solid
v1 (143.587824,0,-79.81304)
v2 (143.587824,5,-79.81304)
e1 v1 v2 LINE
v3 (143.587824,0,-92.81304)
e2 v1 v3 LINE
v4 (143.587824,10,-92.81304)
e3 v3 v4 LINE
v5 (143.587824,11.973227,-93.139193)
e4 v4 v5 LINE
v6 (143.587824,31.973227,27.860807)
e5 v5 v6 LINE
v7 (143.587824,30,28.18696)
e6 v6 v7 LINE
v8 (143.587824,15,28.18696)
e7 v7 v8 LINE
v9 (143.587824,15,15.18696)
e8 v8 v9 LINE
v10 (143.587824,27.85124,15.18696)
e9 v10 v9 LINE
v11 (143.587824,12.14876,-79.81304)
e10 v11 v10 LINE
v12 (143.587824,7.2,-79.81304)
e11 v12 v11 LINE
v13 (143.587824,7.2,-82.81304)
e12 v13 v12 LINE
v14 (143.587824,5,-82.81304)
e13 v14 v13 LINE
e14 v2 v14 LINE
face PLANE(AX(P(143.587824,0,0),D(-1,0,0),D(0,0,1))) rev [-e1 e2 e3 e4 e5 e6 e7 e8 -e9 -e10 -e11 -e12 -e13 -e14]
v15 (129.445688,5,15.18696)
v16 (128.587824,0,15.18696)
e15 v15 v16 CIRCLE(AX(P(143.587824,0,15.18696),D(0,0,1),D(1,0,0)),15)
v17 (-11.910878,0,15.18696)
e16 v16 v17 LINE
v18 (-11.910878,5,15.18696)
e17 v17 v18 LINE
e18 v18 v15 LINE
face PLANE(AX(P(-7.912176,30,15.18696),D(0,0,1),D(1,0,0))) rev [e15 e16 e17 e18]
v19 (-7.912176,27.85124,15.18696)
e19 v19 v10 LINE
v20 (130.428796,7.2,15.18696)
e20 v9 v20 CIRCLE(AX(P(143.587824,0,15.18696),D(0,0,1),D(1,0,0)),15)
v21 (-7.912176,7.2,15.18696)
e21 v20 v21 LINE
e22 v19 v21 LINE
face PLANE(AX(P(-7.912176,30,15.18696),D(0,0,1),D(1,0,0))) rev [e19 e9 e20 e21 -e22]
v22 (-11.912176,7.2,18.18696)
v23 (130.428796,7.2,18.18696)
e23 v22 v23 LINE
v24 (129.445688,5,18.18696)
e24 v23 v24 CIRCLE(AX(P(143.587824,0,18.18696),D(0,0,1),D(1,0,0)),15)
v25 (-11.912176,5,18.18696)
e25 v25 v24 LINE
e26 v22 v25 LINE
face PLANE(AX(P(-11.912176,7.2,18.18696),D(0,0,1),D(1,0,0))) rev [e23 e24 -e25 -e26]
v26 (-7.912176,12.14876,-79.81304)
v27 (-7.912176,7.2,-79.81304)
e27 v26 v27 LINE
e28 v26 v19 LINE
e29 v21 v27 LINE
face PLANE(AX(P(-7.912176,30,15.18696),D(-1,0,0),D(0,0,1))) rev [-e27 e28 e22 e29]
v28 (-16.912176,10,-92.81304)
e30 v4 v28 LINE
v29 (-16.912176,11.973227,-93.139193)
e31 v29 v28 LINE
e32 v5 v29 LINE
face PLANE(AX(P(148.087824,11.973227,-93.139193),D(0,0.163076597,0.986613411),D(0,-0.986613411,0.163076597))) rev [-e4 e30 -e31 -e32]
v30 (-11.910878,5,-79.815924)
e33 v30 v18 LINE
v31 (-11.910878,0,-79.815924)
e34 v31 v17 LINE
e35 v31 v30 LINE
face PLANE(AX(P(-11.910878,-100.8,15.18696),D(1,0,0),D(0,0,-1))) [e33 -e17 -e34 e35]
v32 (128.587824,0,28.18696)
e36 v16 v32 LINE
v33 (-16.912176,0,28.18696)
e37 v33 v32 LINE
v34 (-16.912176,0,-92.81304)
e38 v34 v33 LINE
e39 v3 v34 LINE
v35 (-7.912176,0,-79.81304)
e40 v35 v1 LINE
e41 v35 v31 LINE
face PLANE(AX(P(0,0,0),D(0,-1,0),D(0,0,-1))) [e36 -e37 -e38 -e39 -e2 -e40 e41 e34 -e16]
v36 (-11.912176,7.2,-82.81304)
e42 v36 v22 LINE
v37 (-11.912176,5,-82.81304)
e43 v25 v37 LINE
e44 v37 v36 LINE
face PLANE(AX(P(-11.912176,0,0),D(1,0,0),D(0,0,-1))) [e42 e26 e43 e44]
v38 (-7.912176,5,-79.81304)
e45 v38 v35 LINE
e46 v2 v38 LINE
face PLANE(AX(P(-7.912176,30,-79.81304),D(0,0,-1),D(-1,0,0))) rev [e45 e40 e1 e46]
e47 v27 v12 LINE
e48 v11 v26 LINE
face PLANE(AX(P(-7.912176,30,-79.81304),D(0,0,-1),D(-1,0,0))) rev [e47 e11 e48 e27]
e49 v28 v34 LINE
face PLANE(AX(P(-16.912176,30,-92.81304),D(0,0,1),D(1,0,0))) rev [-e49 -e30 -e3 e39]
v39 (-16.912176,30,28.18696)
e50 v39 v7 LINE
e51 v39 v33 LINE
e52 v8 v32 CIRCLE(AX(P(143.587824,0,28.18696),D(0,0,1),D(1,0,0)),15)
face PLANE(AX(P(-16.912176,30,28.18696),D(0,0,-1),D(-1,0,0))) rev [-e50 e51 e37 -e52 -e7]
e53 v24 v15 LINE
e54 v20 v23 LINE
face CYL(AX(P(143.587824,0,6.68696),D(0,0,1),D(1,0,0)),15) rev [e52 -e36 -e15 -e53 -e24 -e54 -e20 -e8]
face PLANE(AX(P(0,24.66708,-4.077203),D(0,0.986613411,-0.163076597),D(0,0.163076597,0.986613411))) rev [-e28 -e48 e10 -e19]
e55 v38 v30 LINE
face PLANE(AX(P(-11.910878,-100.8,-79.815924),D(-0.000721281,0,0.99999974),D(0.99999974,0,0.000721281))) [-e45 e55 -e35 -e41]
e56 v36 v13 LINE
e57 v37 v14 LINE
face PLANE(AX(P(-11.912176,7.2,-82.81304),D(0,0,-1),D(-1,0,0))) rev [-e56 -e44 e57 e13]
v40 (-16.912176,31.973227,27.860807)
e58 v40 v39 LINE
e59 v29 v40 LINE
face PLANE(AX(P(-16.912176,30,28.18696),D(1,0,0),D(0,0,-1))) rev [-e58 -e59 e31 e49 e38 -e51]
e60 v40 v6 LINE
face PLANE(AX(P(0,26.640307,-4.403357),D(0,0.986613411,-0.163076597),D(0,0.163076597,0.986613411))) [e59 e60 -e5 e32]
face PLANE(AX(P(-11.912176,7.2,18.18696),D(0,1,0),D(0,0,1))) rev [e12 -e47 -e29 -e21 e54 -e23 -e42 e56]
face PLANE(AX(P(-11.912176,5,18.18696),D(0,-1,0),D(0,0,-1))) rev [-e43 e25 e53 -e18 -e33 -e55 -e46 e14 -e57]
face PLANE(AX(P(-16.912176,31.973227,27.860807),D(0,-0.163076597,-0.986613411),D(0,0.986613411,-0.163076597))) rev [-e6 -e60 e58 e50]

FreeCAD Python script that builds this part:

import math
import FreeCAD as App
import Part
import Sketcher

V = App.Vector
Q = App.Units.Quantity

doc = App.newDocument("Part")
params = doc.addObject("Spreadsheet::Sheet", "Params")
for row, (alias, value) in enumerate([
    ("sketch1_width", "156 mm"),
    ("sketch1_width2", "165 mm"),
    ("sketch1_height", "95 mm"),
    ("sketch1_height2", "13 mm"),
    ("pad1_length", "30 mm"),
    ("sketch2_height", "101 mm"),
    ("sketch2_width", "2.2 mm"),
    ("pocket1_length", "160 mm"),
    ("sketch3_height", "95 mm"),
    ("pocket2_length", "108 mm"),
    ("sketch4_width", "20 mm"),
    ("sketch4_height", "121 mm"),
    ("pocket3_length", "202 mm"),
    ("sketch5_width", "165 mm"),
    ("pad2_length", "2 mm"),
    ("sketch6_diameter", "30 mm"),
    ("pocket4_length", "22 mm"),
    ("sketch7_width", "30 mm"),
    ("sketch7_width2", "10 mm"),
    ("sketch7_height", "121 mm"),
    ("sketch7_length", "2 mm"),
    ("pocket5_length", "4.5 mm"),
    ("sketch8_radius", "15 mm"),
    ("pocket6_length", "21.5 mm"),
], start=1):
    params.set(f"A{row}", alias)
    params.set(f"B{row}", "=" + value)
    params.setAlias(f"B{row}", alias)

body = doc.addObject("PartDesign::Body", "Body")

# Sketch on XZ plane
sketch1 = body.newObject("Sketcher::SketchObject", "Sketch")
sketch1.AttachmentSupport = (doc.getObject("XZ_Plane"), [""])
sketch1.MapMode = "FlatFace"
sketch1.addGeometry([
    Part.LineSegment(V(-7.912176, 15.18696, 0), V(-7.912176, -79.81304, 0)),  # 0
    Part.LineSegment(V(-7.912176, -79.81304, 0), V(148.087824, -79.81304, 0)),  # 1
    Part.LineSegment(V(148.087824, -79.81304, 0), V(148.087824, -92.81304, 0)),  # 2
    Part.LineSegment(V(148.087824, -92.81304, 0), V(-16.912176, -92.81304, 0)),  # 3
    Part.LineSegment(V(-16.912176, -92.81304, 0), V(-16.912176, 28.18696, 0)),  # 4
    Part.LineSegment(V(-16.912176, 28.18696, 0), V(148.087824, 28.18696, 0)),  # 5
    Part.LineSegment(V(148.087824, 28.18696, 0), V(148.087824, 15.18696, 0)),  # 6
    Part.LineSegment(V(148.087824, 15.18696, 0), V(-7.912176, 15.18696, 0)),  # 7
], False)
sketch1.addConstraint([
    Sketcher.Constraint("Coincident", 0, 2, 1, 1),
    Sketcher.Constraint("Coincident", 1, 2, 2, 1),
    Sketcher.Constraint("Coincident", 2, 2, 3, 1),
    Sketcher.Constraint("Coincident", 3, 2, 4, 1),
    Sketcher.Constraint("Coincident", 4, 2, 5, 1),
    Sketcher.Constraint("Coincident", 5, 2, 6, 1),
    Sketcher.Constraint("Coincident", 6, 2, 7, 1),
    Sketcher.Constraint("Coincident", 7, 2, 0, 1),
    Sketcher.Constraint("Vertical", 0),
    Sketcher.Constraint("Horizontal", 1),
    Sketcher.Constraint("Vertical", 2),
    Sketcher.Constraint("Horizontal", 3),
    Sketcher.Constraint("Vertical", 4),
    Sketcher.Constraint("Horizontal", 5),
    Sketcher.Constraint("Vertical", 6),
    Sketcher.Constraint("Horizontal", 7),
    Sketcher.Constraint("Vertical", 2, 2, 5, 2),
    Sketcher.Constraint("Equal", 2, 6),
    Sketcher.Constraint("DistanceX", 1, 1, 1, 2, Q("156 mm")),
    Sketcher.Constraint("DistanceX", 3, 2, 3, 1, Q("165 mm")),
    Sketcher.Constraint("DistanceY", 0, 2, 0, 1, Q("95 mm")),
    Sketcher.Constraint("DistanceY", 2, 2, 2, 1, Q("13 mm")),
    Sketcher.Constraint("DistanceY", 0, 2, -1, 1, Q("79.81304 mm")),
    Sketcher.Constraint("DistanceX", 0, 2, -1, 1, Q("7.912176 mm")),
])
sketch1.setExpression("Constraints[18]", "Params.sketch1_width")
sketch1.setExpression("Constraints[19]", "Params.sketch1_width2")
sketch1.setExpression("Constraints[20]", "Params.sketch1_height")
sketch1.setExpression("Constraints[21]", "Params.sketch1_height2")
pad1 = body.newObject("PartDesign::Pad", "Pad")
pad1.Profile = sketch1
pad1.setExpression("Length", "Params.pad1_length")
pad1.Reversed = True

# Sketch on YZ plane
sketch2 = body.newObject("Sketcher::SketchObject", "Sketch001")
sketch2.AttachmentSupport = (doc.getObject("YZ_Plane"), [""])
sketch2.MapMode = "FlatFace"
sketch2.AttachmentOffset = App.Placement(V(0, 0, 148.087824), App.Rotation())
sketch2.addGeometry([
    Part.LineSegment(V(7.2, 18.18696, 0), V(5, 18.18696, 0)),
    Part.LineSegment(V(5, 18.18696, 0), V(5, -82.81304, 0)),
    Part.LineSegment(V(5, -82.81304, 0), V(7.2, -82.81304, 0)),
    Part.LineSegment(V(7.2, -82.81304, 0), V(7.2, 18.18696, 0)),
], False)
sketch2.addConstraint([
    Sketcher.Constraint("Coincident", 0, 2, 1, 1),
    Sketcher.Constraint("Coincident", 1, 2, 2, 1),
    Sketcher.Constraint("Coincident", 2, 2, 3, 1),
    Sketcher.Constraint("Coincident", 3, 2, 0, 1),
    Sketcher.Constraint("Horizontal", 0),
    Sketcher.Constraint("Vertical", 1),
    Sketcher.Constraint("Horizontal", 2),
    Sketcher.Constraint("Vertical", 3),
    Sketcher.Constraint("DistanceY", 1, 2, 1, 1, Q("101 mm")),
    Sketcher.Constraint("DistanceX", 0, 2, 0, 1, Q("2.2 mm")),
    Sketcher.Constraint("DistanceX", -1, 1, 0, 2, Q("5 mm")),
    Sketcher.Constraint("DistanceY", -1, 1, 0, 2, Q("18.18696 mm")),
])
sketch2.setExpression("Constraints[8]", "Params.sketch2_height")
sketch2.setExpression("Constraints[9]", "Params.sketch2_width")
pocket1 = body.newObject("PartDesign::Pocket", "Pocket")
pocket1.Profile = sketch2
pocket1.setExpression("Length", "Params.pocket1_length")

# Sketch on XZ plane
sketch3 = body.newObject("Sketcher::SketchObject", "Sketch002")
sketch3.AttachmentSupport = (doc.getObject("XZ_Plane"), [""])
sketch3.MapMode = "FlatFace"
sketch3.AttachmentOffset = App.Placement(V(0, 0, -7.2), App.Rotation())
sketch3.addGeometry([
    Part.LineSegment(V(-7.912176, 15.18696, 0), V(-11.910878, 15.18696, 0)),
    Part.LineSegment(V(-11.910878, 15.18696, 0), V(-11.910878, -79.815924, 0)),
    Part.LineSegment(V(-11.910878, -79.815924, 0), V(-7.912176, -79.81304, 0)),
    Part.LineSegment(V(-7.912176, -79.81304, 0), V(-7.912176, 15.18696, 0)),
], False)
sketch3.addConstraint([
    Sketcher.Constraint("Coincident", 0, 2, 1, 1),
    Sketcher.Constraint("Coincident", 1, 2, 2, 1),
    Sketcher.Constraint("Coincident", 2, 2, 3, 1),
    Sketcher.Constraint("Coincident", 3, 2, 0, 1),
    Sketcher.Constraint("Horizontal", 0),
    Sketcher.Constraint("Vertical", 1),
    Sketcher.Constraint("Vertical", 3),
    Sketcher.Constraint("DistanceY", 3, 1, 3, 2, Q("95 mm")),
    Sketcher.Constraint("DistanceX", 0, 2, 0, 1, Q("3.998702 mm")),
    Sketcher.Constraint("DistanceY", 1, 2, 1, 1, Q("95.002884 mm")),
    Sketcher.Constraint("DistanceY", -1, 1, 0, 2, Q("15.18696 mm")),
    Sketcher.Constraint("DistanceX", 0, 2, -1, 1, Q("11.910878 mm")),
])
sketch3.setExpression("Constraints[7]", "Params.sketch3_height")
pocket2 = body.newObject("PartDesign::Pocket", "Pocket001")
pocket2.Profile = sketch3
pocket2.setExpression("Length", "Params.pocket2_length")
pocket2.Reversed = True

# Sketch on YZ plane
sketch4 = body.newObject("Sketcher::SketchObject", "Sketch003")
sketch4.AttachmentSupport = (doc.getObject("YZ_Plane"), [""])
sketch4.MapMode = "FlatFace"
sketch4.AttachmentOffset = App.Placement(V(0, 0, -16.912176), App.Rotation())
sketch4.addGeometry([
    Part.LineSegment(V(30, -92.81304, 0), V(10, -92.81304, 0)),
    Part.LineSegment(V(10, -92.81304, 0), V(30, 28.18696, 0)),
    Part.LineSegment(V(30, 28.18696, 0), V(30, -92.81304, 0)),
], False)
sketch4.addConstraint([
    Sketcher.Constraint("Coincident", 0, 2, 1, 1),
    Sketcher.Constraint("Coincident", 1, 2, 2, 1),
    Sketcher.Constraint("Coincident", 2, 2, 0, 1),
    Sketcher.Constraint("Horizontal", 0),
    Sketcher.Constraint("Vertical", 2),
    Sketcher.Constraint("DistanceX", 0, 2, 0, 1, Q("20 mm")),
    Sketcher.Constraint("DistanceY", 2, 2, 2, 1, Q("121 mm")),
    Sketcher.Constraint("DistanceX", -1, 1, 0, 2, Q("10 mm")),
    Sketcher.Constraint("DistanceY", 0, 2, -1, 1, Q("92.81304 mm")),
])
sketch4.setExpression("Constraints[5]", "Params.sketch4_width")
sketch4.setExpression("Constraints[6]", "Params.sketch4_height")
pocket3 = body.newObject("PartDesign::Pocket", "Pocket002")
pocket3.Profile = sketch4
pocket3.setExpression("Length", "Params.pocket3_length")
pocket3.Reversed = True

# Sketch on an angled plane
sketch5 = body.newObject("Sketcher::SketchObject", "Sketch004")
sketch5.Placement = App.Placement(V(0, 24.66708, -4.077203), App.Rotation(V(1, 0, 0), V(0, -0.163076597, -0.986613411), V(0, 0.986613411, -0.163076597), "ZXY"))
sketch5.addGeometry([
    Part.LineSegment(V(-16.912176, 89.939824, 0), V(-16.912176, -32.701931, 0)),
    Part.LineSegment(V(-16.912176, -32.701931, 0), V(148.087824, -32.701931, 0)),
    Part.LineSegment(V(148.087824, -32.701931, 0), V(148.087824, 89.939824, 0)),
    Part.LineSegment(V(148.087824, 89.939824, 0), V(-16.912176, 89.939824, 0)),
], False)
sketch5.addConstraint([
    Sketcher.Constraint("Coincident", 0, 2, 1, 1),
    Sketcher.Constraint("Coincident", 1, 2, 2, 1),
    Sketcher.Constraint("Coincident", 2, 2, 3, 1),
    Sketcher.Constraint("Coincident", 3, 2, 0, 1),
    Sketcher.Constraint("Vertical", 0),
    Sketcher.Constraint("Horizontal", 1),
    Sketcher.Constraint("Vertical", 2),
    Sketcher.Constraint("Horizontal", 3),
    Sketcher.Constraint("DistanceX", 1, 1, 1, 2, Q("165 mm")),
    Sketcher.Constraint("DistanceY", 0, 2, 0, 1, Q("122.641755 mm")),
    Sketcher.Constraint("DistanceY", 0, 2, -1, 1, Q("32.701931 mm")),
    Sketcher.Constraint("DistanceX", 0, 2, -1, 1, Q("16.912176 mm")),
])
sketch5.setExpression("Constraints[8]", "Params.sketch5_width")
pad2 = body.newObject("PartDesign::Pad", "Pad001")
pad2.Profile = sketch5
pad2.setExpression("Length", "Params.pad2_length")

# Sketch on XY plane
sketch6 = body.newObject("Sketcher::SketchObject", "Sketch005")
sketch6.AttachmentSupport = (doc.getObject("XY_Plane"), [""])
sketch6.MapMode = "FlatFace"
sketch6.AttachmentOffset = App.Placement(V(0, 0, 28.18696), App.Rotation())
sketch6.addGeometry(Part.Circle(V(148.087824, 0, 0), V(0, 0, 1), 15), False)
sketch6.addConstraint([
    Sketcher.Constraint("PointOnObject", 0, 3, -1),
    Sketcher.Constraint("Diameter", 0, Q("30 mm")),
    Sketcher.Constraint("DistanceX", -1, 1, 0, 3, Q("148.087824 mm")),
])
sketch6.setExpression("Constraints[1]", "Params.sketch6_diameter")
pocket4 = body.newObject("PartDesign::Pocket", "Pocket003")
pocket4.Profile = sketch6
pocket4.setExpression("Length", "Params.pocket4_length")

# Sketch on YZ plane
sketch7 = body.newObject("Sketcher::SketchObject", "Sketch006")
sketch7.AttachmentSupport = (doc.getObject("YZ_Plane"), [""])
sketch7.MapMode = "FlatFace"
sketch7.AttachmentOffset = App.Placement(V(0, 0, 148.087824), App.Rotation())
sketch7.addGeometry([
    Part.LineSegment(V(30, 28.18696, 0), V(0, 28.18696, 0)),  # 0
    Part.LineSegment(V(0, 28.18696, 0), V(0, -92.81304, 0)),  # 1
    Part.LineSegment(V(0, -92.81304, 0), V(10, -92.81304, 0)),  # 2
    Part.LineSegment(V(10, -92.81304, 0), V(11.973227, -93.139193, 0)),  # 3
    Part.LineSegment(V(11.973227, -93.139193, 0), V(31.973227, 27.860807, 0)),  # 4
    Part.LineSegment(V(31.973227, 27.860807, 0), V(30, 28.18696, 0)),  # 5
], False)
sketch7.addConstraint([
    Sketcher.Constraint("Coincident", 0, 2, 1, 1),
    Sketcher.Constraint("Coincident", 1, 2, 2, 1),
    Sketcher.Constraint("Coincident", 2, 2, 3, 1),
    Sketcher.Constraint("Coincident", 3, 2, 4, 1),
    Sketcher.Constraint("Coincident", 4, 2, 5, 1),
    Sketcher.Constraint("Coincident", 5, 2, 0, 1),
    Sketcher.Constraint("Horizontal", 0),
    Sketcher.Constraint("Vertical", 1),
    Sketcher.Constraint("Horizontal", 2),
    Sketcher.Constraint("PointOnObject", 0, 2, -2),
    Sketcher.Constraint("Perpendicular", 3, 4),
    Sketcher.Constraint("Perpendicular", 4, 5),
    Sketcher.Constraint("Equal", 3, 5),
    Sketcher.Constraint("DistanceX", 0, 2, 0, 1, Q("30 mm")),
    Sketcher.Constraint("DistanceX", 2, 1, 2, 2, Q("10 mm")),
    Sketcher.Constraint("DistanceY", 1, 2, 1, 1, Q("121 mm")),
    Sketcher.Constraint("Distance", 3, Q("2 mm")),
    Sketcher.Constraint("DistanceY", -1, 1, 0, 2, Q("28.18696 mm")),
])
sketch7.setExpression("Constraints[13]", "Params.sketch7_width")
sketch7.setExpression("Constraints[14]", "Params.sketch7_width2")
sketch7.setExpression("Constraints[15]", "Params.sketch7_height")
sketch7.setExpression("Constraints[16]", "Params.sketch7_length")
pocket5 = body.newObject("PartDesign::Pocket", "Pocket004")
pocket5.Profile = sketch7
pocket5.setExpression("Length", "Params.pocket5_length")

# Sketch on XY plane
sketch8 = body.newObject("Sketcher::SketchObject", "Sketch007")
sketch8.AttachmentSupport = (doc.getObject("XY_Plane"), [""])
sketch8.MapMode = "FlatFace"
sketch8.AttachmentOffset = App.Placement(V(0, 0, 28.18696), App.Rotation())
sketch8.addGeometry([
    Part.LineSegment(V(143.587824, 0, 0), V(143.587824, 15, 0)),
    Part.ArcOfCircle(Part.Circle(V(143.587824, 0, 0), V(0, 0, 1), 15), math.radians(90), math.radians(180)),
    Part.LineSegment(V(128.587824, 0, 0), V(143.587824, 0, 0)),
], False)
sketch8.addConstraint([
    Sketcher.Constraint("Coincident", 0, 2, 1, 1),
    Sketcher.Constraint("Coincident", 1, 2, 2, 1),
    Sketcher.Constraint("Coincident", 2, 2, 0, 1),
    Sketcher.Constraint("Vertical", 0),
    Sketcher.Constraint("Horizontal", 2),
    Sketcher.Constraint("Coincident", 2, 2, 1, 3),
    Sketcher.Constraint("PointOnObject", 1, 3, -1),
    Sketcher.Constraint("Radius", 1, Q("15 mm")),
    Sketcher.Constraint("DistanceX", -1, 1, 1, 3, Q("143.587824 mm")),
])
sketch8.setExpression("Constraints[7]", "Params.sketch8_radius")
pocket6 = body.newObject("PartDesign::Pocket", "Pocket005")
pocket6.Profile = sketch8
pocket6.setExpression("Length", "Params.pocket6_length")

doc.recompute()
